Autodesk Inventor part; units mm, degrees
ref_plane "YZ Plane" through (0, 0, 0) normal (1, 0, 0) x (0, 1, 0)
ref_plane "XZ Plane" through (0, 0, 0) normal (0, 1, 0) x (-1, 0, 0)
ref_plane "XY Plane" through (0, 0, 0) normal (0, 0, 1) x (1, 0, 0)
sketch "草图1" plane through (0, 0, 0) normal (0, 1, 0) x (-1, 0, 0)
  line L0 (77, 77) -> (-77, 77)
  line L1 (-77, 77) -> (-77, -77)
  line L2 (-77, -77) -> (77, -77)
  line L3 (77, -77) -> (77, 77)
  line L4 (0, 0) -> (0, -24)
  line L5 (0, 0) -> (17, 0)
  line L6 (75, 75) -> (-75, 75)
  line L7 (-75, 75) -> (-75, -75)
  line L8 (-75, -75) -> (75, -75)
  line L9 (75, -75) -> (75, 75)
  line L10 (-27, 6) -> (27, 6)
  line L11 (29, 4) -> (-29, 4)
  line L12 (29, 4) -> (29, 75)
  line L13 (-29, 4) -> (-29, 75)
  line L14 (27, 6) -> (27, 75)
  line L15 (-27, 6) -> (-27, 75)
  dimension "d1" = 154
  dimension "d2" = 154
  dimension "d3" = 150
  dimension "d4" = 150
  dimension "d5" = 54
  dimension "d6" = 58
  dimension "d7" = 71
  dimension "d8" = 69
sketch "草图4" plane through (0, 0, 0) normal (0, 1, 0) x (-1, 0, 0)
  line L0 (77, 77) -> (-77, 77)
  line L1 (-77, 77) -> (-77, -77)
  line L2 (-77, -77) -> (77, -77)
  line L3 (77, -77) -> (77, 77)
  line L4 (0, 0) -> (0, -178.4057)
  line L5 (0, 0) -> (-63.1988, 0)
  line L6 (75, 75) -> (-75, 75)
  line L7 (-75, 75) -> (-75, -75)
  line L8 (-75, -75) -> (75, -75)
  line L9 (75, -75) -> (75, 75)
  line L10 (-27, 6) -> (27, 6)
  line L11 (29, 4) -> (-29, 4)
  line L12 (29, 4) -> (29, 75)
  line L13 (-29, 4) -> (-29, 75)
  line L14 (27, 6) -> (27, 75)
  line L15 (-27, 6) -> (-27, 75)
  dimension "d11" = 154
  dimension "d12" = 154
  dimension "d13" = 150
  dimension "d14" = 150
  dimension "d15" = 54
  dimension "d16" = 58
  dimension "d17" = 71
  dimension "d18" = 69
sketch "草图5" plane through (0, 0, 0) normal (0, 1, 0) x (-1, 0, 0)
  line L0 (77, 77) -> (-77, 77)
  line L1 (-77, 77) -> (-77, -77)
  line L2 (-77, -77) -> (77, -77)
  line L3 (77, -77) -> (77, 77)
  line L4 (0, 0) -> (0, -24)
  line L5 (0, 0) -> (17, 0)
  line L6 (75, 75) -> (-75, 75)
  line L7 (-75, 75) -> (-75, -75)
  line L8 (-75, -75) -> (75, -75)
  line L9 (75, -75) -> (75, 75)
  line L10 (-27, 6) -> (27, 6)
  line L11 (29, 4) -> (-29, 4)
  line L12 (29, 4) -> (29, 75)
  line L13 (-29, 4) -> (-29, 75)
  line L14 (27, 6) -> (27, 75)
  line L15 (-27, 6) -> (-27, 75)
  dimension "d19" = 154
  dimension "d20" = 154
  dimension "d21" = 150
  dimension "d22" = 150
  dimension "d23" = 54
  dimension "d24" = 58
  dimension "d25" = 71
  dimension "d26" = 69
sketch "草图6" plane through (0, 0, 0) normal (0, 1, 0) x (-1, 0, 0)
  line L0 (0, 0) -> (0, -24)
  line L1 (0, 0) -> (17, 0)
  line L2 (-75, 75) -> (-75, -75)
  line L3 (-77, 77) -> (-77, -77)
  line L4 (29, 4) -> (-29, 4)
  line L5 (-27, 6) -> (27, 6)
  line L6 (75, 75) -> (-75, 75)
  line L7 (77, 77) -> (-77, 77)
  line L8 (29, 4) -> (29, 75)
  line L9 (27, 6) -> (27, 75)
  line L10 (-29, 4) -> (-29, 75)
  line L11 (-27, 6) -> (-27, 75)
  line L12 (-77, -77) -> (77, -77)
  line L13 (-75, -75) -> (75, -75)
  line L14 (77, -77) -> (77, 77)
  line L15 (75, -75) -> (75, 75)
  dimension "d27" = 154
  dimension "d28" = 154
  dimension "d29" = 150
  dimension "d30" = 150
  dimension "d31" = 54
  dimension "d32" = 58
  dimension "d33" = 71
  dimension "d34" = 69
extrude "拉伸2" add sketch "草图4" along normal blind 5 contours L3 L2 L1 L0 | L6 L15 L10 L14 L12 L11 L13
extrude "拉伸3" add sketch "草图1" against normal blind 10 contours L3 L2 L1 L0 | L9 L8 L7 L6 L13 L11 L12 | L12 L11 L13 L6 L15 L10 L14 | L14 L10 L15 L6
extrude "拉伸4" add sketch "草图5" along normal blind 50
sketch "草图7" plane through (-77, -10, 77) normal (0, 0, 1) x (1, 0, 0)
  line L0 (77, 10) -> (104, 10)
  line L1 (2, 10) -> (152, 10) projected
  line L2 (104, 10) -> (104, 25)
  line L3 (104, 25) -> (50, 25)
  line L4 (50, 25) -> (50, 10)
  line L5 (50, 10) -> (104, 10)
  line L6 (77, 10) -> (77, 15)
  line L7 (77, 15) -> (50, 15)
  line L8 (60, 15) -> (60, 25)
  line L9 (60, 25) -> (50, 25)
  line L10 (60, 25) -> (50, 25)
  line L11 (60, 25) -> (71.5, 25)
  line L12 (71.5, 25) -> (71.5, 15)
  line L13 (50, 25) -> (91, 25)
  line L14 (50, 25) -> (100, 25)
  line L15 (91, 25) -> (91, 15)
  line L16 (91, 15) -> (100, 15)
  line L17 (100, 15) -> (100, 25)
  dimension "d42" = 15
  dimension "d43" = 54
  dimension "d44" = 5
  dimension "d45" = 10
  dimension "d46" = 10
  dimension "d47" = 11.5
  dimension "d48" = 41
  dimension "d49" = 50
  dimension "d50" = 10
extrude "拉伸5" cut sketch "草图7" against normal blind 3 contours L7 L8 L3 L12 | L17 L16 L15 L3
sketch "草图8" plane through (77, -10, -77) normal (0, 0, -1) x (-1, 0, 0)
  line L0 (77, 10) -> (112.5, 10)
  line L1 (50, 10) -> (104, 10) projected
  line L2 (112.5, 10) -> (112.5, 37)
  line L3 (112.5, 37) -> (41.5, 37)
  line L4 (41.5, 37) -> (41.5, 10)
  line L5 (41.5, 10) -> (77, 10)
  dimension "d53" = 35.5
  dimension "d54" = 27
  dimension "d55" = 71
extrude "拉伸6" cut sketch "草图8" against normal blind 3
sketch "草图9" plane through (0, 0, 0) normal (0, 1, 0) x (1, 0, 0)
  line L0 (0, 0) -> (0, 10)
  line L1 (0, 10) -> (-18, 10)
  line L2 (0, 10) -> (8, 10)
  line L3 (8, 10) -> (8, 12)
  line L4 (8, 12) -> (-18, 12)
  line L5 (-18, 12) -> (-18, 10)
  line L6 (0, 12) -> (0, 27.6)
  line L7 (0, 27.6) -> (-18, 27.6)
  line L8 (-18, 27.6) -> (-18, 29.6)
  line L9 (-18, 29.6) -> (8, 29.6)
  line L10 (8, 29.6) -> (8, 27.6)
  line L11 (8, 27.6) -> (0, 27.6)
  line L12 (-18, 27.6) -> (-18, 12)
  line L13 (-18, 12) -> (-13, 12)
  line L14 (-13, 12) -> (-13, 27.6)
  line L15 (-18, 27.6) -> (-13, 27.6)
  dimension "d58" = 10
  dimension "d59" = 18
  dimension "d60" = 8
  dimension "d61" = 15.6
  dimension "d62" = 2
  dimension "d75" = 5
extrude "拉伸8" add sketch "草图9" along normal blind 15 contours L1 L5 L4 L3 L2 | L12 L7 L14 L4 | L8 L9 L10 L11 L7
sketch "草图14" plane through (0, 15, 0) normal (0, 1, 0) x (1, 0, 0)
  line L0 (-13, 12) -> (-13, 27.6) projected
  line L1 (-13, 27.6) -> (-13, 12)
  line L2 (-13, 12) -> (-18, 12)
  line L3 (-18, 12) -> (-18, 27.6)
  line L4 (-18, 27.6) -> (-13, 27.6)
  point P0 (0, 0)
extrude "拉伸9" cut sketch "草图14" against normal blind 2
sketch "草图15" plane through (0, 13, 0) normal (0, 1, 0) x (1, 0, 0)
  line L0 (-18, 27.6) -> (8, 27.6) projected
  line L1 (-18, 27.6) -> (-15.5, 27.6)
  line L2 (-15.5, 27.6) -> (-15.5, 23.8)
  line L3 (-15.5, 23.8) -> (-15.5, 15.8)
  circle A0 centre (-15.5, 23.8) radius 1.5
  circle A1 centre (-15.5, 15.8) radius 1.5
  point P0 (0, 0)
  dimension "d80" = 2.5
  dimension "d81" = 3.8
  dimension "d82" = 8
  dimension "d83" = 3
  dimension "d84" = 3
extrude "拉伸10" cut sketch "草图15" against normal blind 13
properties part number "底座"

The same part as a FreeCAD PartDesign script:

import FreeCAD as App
import Part
import Sketcher

doc = App.newDocument("Part")
body = doc.addObject("PartDesign::Body", "Body")

# Sketch on XZ plane
sketch1 = body.newObject("Sketcher::SketchObject", "Sketch")
sketch1.AttachmentSupport = (doc.getObject("XZ_Plane"), [""])
sketch1.MapMode = "FlatFace"
sketch1.addGeometry([
    Part.LineSegment(App.Vector(-77, -77, 0), App.Vector(-77, 77, 0)),  # 0
    Part.LineSegment(App.Vector(-77, 77, 0), App.Vector(77, 77, 0)),  # 1
    Part.LineSegment(App.Vector(77, 77, 0), App.Vector(77, -77, 0)),  # 2
    Part.LineSegment(App.Vector(77, -77, 0), App.Vector(0, -77, 0)),  # 3
    Part.LineSegment(App.Vector(0, -77, 0), App.Vector(-77, -77, 0)),  # 4
    Part.LineSegment(App.Vector(-75, -75, 0), App.Vector(0, -75, 0)),  # 5
    Part.LineSegment(App.Vector(0, -75, 0), App.Vector(75, -75, 0)),  # 6
    Part.LineSegment(App.Vector(75, -75, 0), App.Vector(75, 75, 0)),  # 7
    Part.LineSegment(App.Vector(75, 75, 0), App.Vector(29, 75, 0)),  # 8
    Part.LineSegment(App.Vector(29, 75, 0), App.Vector(29, 4, 0)),  # 9
    Part.LineSegment(App.Vector(29, 4, 0), App.Vector(-29, 4, 0)),  # 10
    Part.LineSegment(App.Vector(-29, 4, 0), App.Vector(-29, 75, 0)),  # 11
    Part.LineSegment(App.Vector(-29, 75, 0), App.Vector(-75, 75, 0)),  # 12
    Part.LineSegment(App.Vector(-75, 75, 0), App.Vector(-75, -75, 0)),  # 13
    Part.LineSegment(App.Vector(27, 75, 0), App.Vector(-27, 75, 0)),  # 14
    Part.LineSegment(App.Vector(-27, 75, 0), App.Vector(-27, 6, 0)),  # 15
    Part.LineSegment(App.Vector(-27, 6, 0), App.Vector(27, 6, 0)),  # 16
    Part.LineSegment(App.Vector(27, 6, 0), App.Vector(27, 75, 0)),  # 17
], False)
sketch1.addConstraint([
    Sketcher.Constraint("Coincident", 0, 2, 1, 1),
    Sketcher.Constraint("Coincident", 1, 2, 2, 1),
    Sketcher.Constraint("Coincident", 2, 2, 3, 1),
    Sketcher.Constraint("Coincident", 3, 2, 4, 1),
    Sketcher.Constraint("Coincident", 4, 2, 0, 1),
    Sketcher.Constraint("Coincident", 5, 2, 6, 1),
    Sketcher.Constraint("Coincident", 6, 2, 7, 1),
    Sketcher.Constraint("Coincident", 7, 2, 8, 1),
    Sketcher.Constraint("Coincident", 8, 2, 9, 1),
    Sketcher.Constraint("Coincident", 9, 2, 10, 1),
    Sketcher.Constraint("Coincident", 10, 2, 11, 1),
    Sketcher.Constraint("Coincident", 11, 2, 12, 1),
    Sketcher.Constraint("Coincident", 12, 2, 13, 1),
    Sketcher.Constraint("Coincident", 13, 2, 5, 1),
    Sketcher.Constraint("Coincident", 14, 2, 15, 1),
    Sketcher.Constraint("Coincident", 15, 2, 16, 1),
    Sketcher.Constraint("Coincident", 16, 2, 17, 1),
    Sketcher.Constraint("Coincident", 17, 2, 14, 1),
    Sketcher.Constraint("Vertical", 0),
    Sketcher.Constraint("Horizontal", 1),
    Sketcher.Constraint("Vertical", 2),
    Sketcher.Constraint("Horizontal", 3),
    Sketcher.Constraint("Horizontal", 4),
    Sketcher.Constraint("Horizontal", 5),
    Sketcher.Constraint("Horizontal", 6),
    Sketcher.Constraint("Vertical", 7),
    Sketcher.Constraint("Horizontal", 8),
    Sketcher.Constraint("Vertical", 9),
    Sketcher.Constraint("Horizontal", 10),
    Sketcher.Constraint("Vertical", 11),
    Sketcher.Constraint("Horizontal", 12),
    Sketcher.Constraint("Vertical", 13),
    Sketcher.Constraint("Horizontal", 14),
    Sketcher.Constraint("Vertical", 15),
    Sketcher.Constraint("Horizontal", 16),
    Sketcher.Constraint("Vertical", 17),
    Sketcher.Constraint("Symmetric", 0, 2, 2, 2, -1, 1),
    Sketcher.Constraint("Symmetric", 6, 2, 12, 2, -1, 1),
    Sketcher.Constraint("Symmetric", 8, 2, 11, 2, -2),
    Sketcher.Constraint("PointOnObject", 3, 2, -2),
    Sketcher.Constraint("PointOnObject", 5, 2, -2),
    Sketcher.Constraint("Horizontal", 12, 2, 14, 2),
    Sketcher.Constraint("Equal", 1, 0),
    Sketcher.Constraint("DistanceX", 1, 1, 1, 2, 154.0),
    Sketcher.Constraint("DistanceX", 10, 2, 10, 1, 58.0),
    Sketcher.Constraint("DistanceX", 14, 2, 14, 1, 54.0),
    Sketcher.Constraint("DistanceY", 7, 1, 7, 2, 150.0),
    Sketcher.Constraint("DistanceY", 9, 2, 9, 1, 71.0),
    Sketcher.Constraint("DistanceY", 15, 2, 15, 1, 69.0),
    Sketcher.Constraint("DistanceX", 5, 1, 5, 2, 75.0),
    Sketcher.Constraint("DistanceX", 14, 2, -1, 1, 27.0),
])
pad1 = body.newObject("PartDesign::Pad", "Pad")
pad1.Profile = sketch1
pad1.Length = 5
pad1.Reversed = True

# Sketch on XZ plane
sketch2 = body.newObject("Sketcher::SketchObject", "Sketch001")
sketch2.AttachmentSupport = (doc.getObject("XZ_Plane"), [""])
sketch2.MapMode = "FlatFace"
sketch2.addGeometry([
    Part.LineSegment(App.Vector(-77, -77, 0), App.Vector(-77, 77, 0)),
    Part.LineSegment(App.Vector(-77, 77, 0), App.Vector(77, 77, 0)),
    Part.LineSegment(App.Vector(77, 77, 0), App.Vector(77, -77, 0)),
    Part.LineSegment(App.Vector(77, -77, 0), App.Vector(-77, -77, 0)),
], False)
sketch2.addConstraint([
    Sketcher.Constraint("Coincident", 0, 2, 1, 1),
    Sketcher.Constraint("Coincident", 1, 2, 2, 1),
    Sketcher.Constraint("Coincident", 2, 2, 3, 1),
    Sketcher.Constraint("Coincident", 3, 2, 0, 1),
    Sketcher.Constraint("Vertical", 0),
    Sketcher.Constraint("Horizontal", 1),
    Sketcher.Constraint("Vertical", 2),
    Sketcher.Constraint("Horizontal", 3),
    Sketcher.Constraint("Symmetric", 0, 2, 2, 2, -1, 1),
    Sketcher.Constraint("Equal", 3, 0),
    Sketcher.Constraint("DistanceX", 1, 1, 1, 2, 154.0),
])
pad2 = body.newObject("PartDesign::Pad", "Pad001")
pad2.Profile = sketch2
pad2.Length = 10

# Sketch on XZ plane
sketch3 = body.newObject("Sketcher::SketchObject", "Sketch002")
sketch3.AttachmentSupport = (doc.getObject("XZ_Plane"), [""])
sketch3.MapMode = "FlatFace"
sketch3.addGeometry([
    Part.LineSegment(App.Vector(-77, -77, 0), App.Vector(-77, 77, 0)),  # 0
    Part.LineSegment(App.Vector(-77, 77, 0), App.Vector(77, 77, 0)),  # 1
    Part.LineSegment(App.Vector(77, 77, 0), App.Vector(77, -77, 0)),  # 2
    Part.LineSegment(App.Vector(77, -77, 0), App.Vector(-77, -77, 0)),  # 3
    Part.LineSegment(App.Vector(75, 75, 0), App.Vector(-75, 75, 0)),  # 4
    Part.LineSegment(App.Vector(-75, 75, 0), App.Vector(-75, -75, 0)),  # 5
    Part.LineSegment(App.Vector(-75, -75, 0), App.Vector(75, -75, 0)),  # 6
    Part.LineSegment(App.Vector(75, -75, 0), App.Vector(75, 75, 0)),  # 7
], False)
sketch3.addConstraint([
    Sketcher.Constraint("Coincident", 0, 2, 1, 1),
    Sketcher.Constraint("Coincident", 1, 2, 2, 1),
    Sketcher.Constraint("Coincident", 2, 2, 3, 1),
    Sketcher.Constraint("Coincident", 3, 2, 0, 1),
    Sketcher.Constraint("Coincident", 4, 2, 5, 1),
    Sketcher.Constraint("Coincident", 5, 2, 6, 1),
    Sketcher.Constraint("Coincident", 6, 2, 7, 1),
    Sketcher.Constraint("Coincident", 7, 2, 4, 1),
    Sketcher.Constraint("Vertical", 0),
    Sketcher.Constraint("Horizontal", 1),
    Sketcher.Constraint("Vertical", 2),
    Sketcher.Constraint("Horizontal", 3),
    Sketcher.Constraint("Horizontal", 4),
    Sketcher.Constraint("Vertical", 5),
    Sketcher.Constraint("Horizontal", 6),
    Sketcher.Constraint("Vertical", 7),
    Sketcher.Constraint("Symmetric", 0, 2, 2, 2, -1, 1),
    Sketcher.Constraint("Symmetric", 4, 2, 6, 2, -1, 1),
    Sketcher.Constraint("Equal", 3, 0),
    Sketcher.Constraint("Equal", 6, 5),
    Sketcher.Constraint("DistanceX", 1, 1, 1, 2, 154.0),
    Sketcher.Constraint("DistanceX", 4, 2, 4, 1, 150.0),
])
pad3 = body.newObject("PartDesign::Pad", "Pad002")
pad3.Profile = sketch3
pad3.Length = 50
pad3.Reversed = True

# Sketch on XY plane
sketch4 = body.newObject("Sketcher::SketchObject", "Sketch003")
sketch4.AttachmentSupport = (doc.getObject("XY_Plane"), [""])
sketch4.MapMode = "FlatFace"
sketch4.AttachmentOffset = App.Placement(App.Vector(0, 0, 77), App.Rotation())
sketch4.addGeometry([
    Part.LineSegment(App.Vector(-17, 5, 0), App.Vector(-6, 5, 0)),  # 0
    Part.LineSegment(App.Vector(-6, 5, 0), App.Vector(-6, 15, 0)),  # 1
    Part.LineSegment(App.Vector(-6, 15, 0), App.Vector(-17, 15, 0)),  # 2
    Part.LineSegment(App.Vector(-17, 15, 0), App.Vector(-17, 5, 0)),  # 3
    Part.LineSegment(App.Vector(23, 5, 0), App.Vector(23, 15, 0)),  # 4
    Part.LineSegment(App.Vector(23, 15, 0), App.Vector(14, 15, 0)),  # 5
    Part.LineSegment(App.Vector(14, 15, 0), App.Vector(14, 5, 0)),  # 6
    Part.LineSegment(App.Vector(14, 5, 0), App.Vector(23, 5, 0)),  # 7
], False)
sketch4.addConstraint([
    Sketcher.Constraint("Coincident", 0, 2, 1, 1),
    Sketcher.Constraint("Coincident", 1, 2, 2, 1),
    Sketcher.Constraint("Coincident", 2, 2, 3, 1),
    Sketcher.Constraint("Coincident", 3, 2, 0, 1),
    Sketcher.Constraint("Coincident", 4, 2, 5, 1),
    Sketcher.Constraint("Coincident", 5, 2, 6, 1),
    Sketcher.Constraint("Coincident", 6, 2, 7, 1),
    Sketcher.Constraint("Coincident", 7, 2, 4, 1),
    Sketcher.Constraint("Horizontal", 0),
    Sketcher.Constraint("Vertical", 1),
    Sketcher.Constraint("Horizontal", 2),
    Sketcher.Constraint("Vertical", 3),
    Sketcher.Constraint("Vertical", 4),
    Sketcher.Constraint("Horizontal", 5),
    Sketcher.Constraint("Vertical", 6),
    Sketcher.Constraint("Horizontal", 7),
    Sketcher.Constraint("Horizontal", 2, 2, 4, 2),
    Sketcher.Constraint("Horizontal", 3, 2, 6, 2),
    Sketcher.Constraint("DistanceY", 1, 1, 1, 2, 10.0),
    Sketcher.Constraint("DistanceX", 0, 1, 0, 2, 11.5),
    Sketcher.Constraint("DistanceY", -1, 1, 0, 2, 5.0),
    Sketcher.Constraint("DistanceX", 5, 2, 5, 1, 9.0),
    Sketcher.Constraint("DistanceX", 2, 2, -1, 1, 17.0),
    Sketcher.Constraint("DistanceX", -1, 1, 4, 2, 23.0),
])
pocket1 = body.newObject("PartDesign::Pocket", "Pocket")
pocket1.Profile = sketch4
pocket1.Length = 3

# Sketch on XY plane
sketch5 = body.newObject("Sketcher::SketchObject", "Sketch004")
sketch5.AttachmentSupport = (doc.getObject("XY_Plane"), [""])
sketch5.MapMode = "FlatFace"
sketch5.AttachmentOffset = App.Placement(App.Vector(0, 0, -77), App.Rotation())
sketch5.addGeometry([
    Part.LineSegment(App.Vector(36, 0, 0), App.Vector(-36, 0, 0)),
    Part.LineSegment(App.Vector(-36, 0, 0), App.Vector(-36, 27, 0)),
    Part.LineSegment(App.Vector(-36, 27, 0), App.Vector(36, 27, 0)),
    Part.LineSegment(App.Vector(36, 27, 0), App.Vector(36, 0, 0)),
], False)
sketch5.addConstraint([
    Sketcher.Constraint("Coincident", 0, 2, 1, 1),
    Sketcher.Constraint("Coincident", 1, 2, 2, 1),
    Sketcher.Constraint("Coincident", 2, 2, 3, 1),
    Sketcher.Constraint("Coincident", 3, 2, 0, 1),
    Sketcher.Constraint("Horizontal", 0),
    Sketcher.Constraint("Vertical", 1),
    Sketcher.Constraint("Horizontal", 2),
    Sketcher.Constraint("Vertical", 3),
    Sketcher.Constraint("Symmetric", 0, 2, 3, 2, -1, 1),
    Sketcher.Constraint("DistanceX", 0, 2, 0, 1, 71.0),
    Sketcher.Constraint("DistanceY", 1, 1, 1, 2, 27.0),
])
pocket2 = body.newObject("PartDesign::Pocket", "Pocket001")
pocket2.Profile = sketch5
pocket2.Length = 3
pocket2.Reversed = True

# Sketch on XZ plane
sketch6 = body.newObject("Sketcher::SketchObject", "Sketch005")
sketch6.AttachmentSupport = (doc.getObject("XZ_Plane"), [""])
sketch6.MapMode = "FlatFace"
sketch6.addGeometry([
    Part.LineSegment(App.Vector(-18, -10, 0), App.Vector(8, -10, 0)),  # 0
    Part.LineSegment(App.Vector(8, -10, 0), App.Vector(8, -12, 0)),  # 1
    Part.LineSegment(App.Vector(8, -12, 0), App.Vector(-13, -12, 0)),  # 2
    Part.LineSegment(App.Vector(-13, -12, 0), App.Vector(-13, -27.6, 0)),  # 3
    Part.LineSegment(App.Vector(-13, -27.6, 0), App.Vector(8, -27.6, 0)),  # 4
    Part.LineSegment(App.Vector(8, -27.6, 0), App.Vector(8, -29.6, 0)),  # 5
    Part.LineSegment(App.Vector(8, -29.6, 0), App.Vector(-18, -29.6, 0)),  # 6
    Part.LineSegment(App.Vector(-18, -29.6, 0), App.Vector(-18, -10, 0)),  # 7
], False)
sketch6.addConstraint([
    Sketcher.Constraint("Coincident", 0, 2, 1, 1),
    Sketcher.Constraint("Coincident", 1, 2, 2, 1),
    Sketcher.Constraint("Coincident", 2, 2, 3, 1),
    Sketcher.Constraint("Coincident", 3, 2, 4, 1),
    Sketcher.Constraint("Coincident", 4, 2, 5, 1),
    Sketcher.Constraint("Coincident", 5, 2, 6, 1),
    Sketcher.Constraint("Coincident", 6, 2, 7, 1),
    Sketcher.Constraint("Coincident", 7, 2, 0, 1),
    Sketcher.Constraint("Horizontal", 0),
    Sketcher.Constraint("Vertical", 1),
    Sketcher.Constraint("Horizontal", 2),
    Sketcher.Constraint("Vertical", 3),
    Sketcher.Constraint("Horizontal", 4),
    Sketcher.Constraint("Vertical", 5),
    Sketcher.Constraint("Horizontal", 6),
    Sketcher.Constraint("Vertical", 7),
    Sketcher.Constraint("Vertical", 1, 2, 4, 2),
    Sketcher.Constraint("Equal", 1, 5),
    Sketcher.Constraint("DistanceY", 1, 2, 1, 1, 2.0),
    Sketcher.Constraint("DistanceY", 3, 2, 3, 1, 15.6),
    Sketcher.Constraint("DistanceX", -1, 1, 0, 2, 8.0),
    Sketcher.Constraint("DistanceY", 0, 2, -1, 1, 10.0),
    Sketcher.Constraint("DistanceX", 6, 2, -1, 1, 18.0),
    Sketcher.Constraint("DistanceX", 6, 2, 3, 2, 5.0),
])
pad4 = body.newObject("PartDesign::Pad", "Pad003")
pad4.Profile = sketch6
pad4.Length = 15
pad4.Reversed = True

# Sketch on XZ plane
sketch7 = body.newObject("Sketcher::SketchObject", "Sketch006")
sketch7.AttachmentSupport = (doc.getObject("XZ_Plane"), [""])
sketch7.MapMode = "FlatFace"
sketch7.AttachmentOffset = App.Placement(App.Vector(0, 0, -15), App.Rotation())
sketch7.addGeometry([
    Part.LineSegment(App.Vector(-18, -12, 0), App.Vector(-13, -12, 0)),
    Part.LineSegment(App.Vector(-13, -12, 0), App.Vector(-13, -28, 0)),
    Part.LineSegment(App.Vector(-13, -28, 0), App.Vector(-18, -28, 0)),
    Part.LineSegment(App.Vector(-18, -28, 0), App.Vector(-18, -12, 0)),
], False)
sketch7.addConstraint([
    Sketcher.Constraint("Coincident", 0, 2, 1, 1),
    Sketcher.Constraint("Coincident", 1, 2, 2, 1),
    Sketcher.Constraint("Coincident", 2, 2, 3, 1),
    Sketcher.Constraint("Coincident", 3, 2, 0, 1),
    Sketcher.Constraint("Horizontal", 0),
    Sketcher.Constraint("Vertical", 1),
    Sketcher.Constraint("Horizontal", 2),
    Sketcher.Constraint("Vertical", 3),
    Sketcher.Constraint("DistanceX", 0, 1, 0, 2, 5.0),
    Sketcher.Constraint("DistanceY", 1, 2, 1, 1, 15.6),
    Sketcher.Constraint("DistanceX", 0, 2, -1, 1, 13.0),
    Sketcher.Constraint("DistanceY", 0, 2, -1, 1, 12.0),
])
pocket3 = body.newObject("PartDesign::Pocket", "Pocket002")
pocket3.Profile = sketch7
pocket3.Length = 2
pocket3.Reversed = True

# Sketch on XZ plane
sketch8 = body.newObject("Sketcher::SketchObject", "Sketch007")
sketch8.AttachmentSupport = (doc.getObject("XZ_Plane"), [""])
sketch8.MapMode = "FlatFace"
sketch8.AttachmentOffset = App.Placement(App.Vector(0, 0, -13), App.Rotation())
sketch8.addGeometry([
    Part.Circle(App.Vector(-15.5, -23.8, 0), App.Vector(0, 0, 1), 1.5),
    Part.Circle(App.Vector(-15.5, -15.8, 0), App.Vector(0, 0, 1), 1.5),
], False)
sketch8.addConstraint([
    Sketcher.Constraint("Equal", 0, 1),
    Sketcher.Constraint("Vertical", 0, 3, 1, 3),
    Sketcher.Constraint("Diameter", 0, 3.0),
    Sketcher.Constraint("DistanceY", 0, 3, 1, 3, 8.0),
    Sketcher.Constraint("DistanceX", 0, 3, -1, 1, 15.5),
    Sketcher.Constraint("DistanceY", 0, 3, -1, 1, 23.8),
])
pocket4 = body.newObject("PartDesign::Pocket", "Pocket003")
pocket4.Profile = sketch8
pocket4.Length = 13
pocket4.Reversed = True

doc.recompute()
